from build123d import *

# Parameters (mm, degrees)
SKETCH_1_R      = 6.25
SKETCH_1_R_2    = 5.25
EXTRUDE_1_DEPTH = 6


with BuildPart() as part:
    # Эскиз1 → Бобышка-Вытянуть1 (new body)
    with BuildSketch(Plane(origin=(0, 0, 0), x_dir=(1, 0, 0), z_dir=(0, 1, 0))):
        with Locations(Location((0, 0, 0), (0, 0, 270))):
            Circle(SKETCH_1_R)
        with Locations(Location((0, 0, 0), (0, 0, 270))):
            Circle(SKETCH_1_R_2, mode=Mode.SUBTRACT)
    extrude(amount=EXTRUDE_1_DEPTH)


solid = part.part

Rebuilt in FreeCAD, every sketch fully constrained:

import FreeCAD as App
import Part
import Sketcher

V = App.Vector

doc = App.newDocument("Part")
body = doc.addObject("PartDesign::Body", "Body")

# Sketch on XZ plane
sketch1 = doc.addObject("Sketcher::SketchObject", "Sketch")
body.addObject(sketch1)
sketch1.AttachmentSupport = (doc.XZ_Plane, [""])
sketch1.MapMode = "FlatFace"
sketch1.addGeometry(Part.Circle(V(0, 0, 0), V(0, 0, 1), 6), False)
sketch1.addGeometry(Part.Circle(V(0, 0, 0), V(0, 0, 1), 5), False)
sketch1.addConstraint(Sketcher.Constraint("Coincident", 0, 3, -1, 1))
sketch1.addConstraint(Sketcher.Constraint("Coincident", 1, 3, -1, 1))
sketch1.addConstraint(Sketcher.Constraint("Diameter", 0, 12.5))
sketch1.addConstraint(Sketcher.Constraint("Diameter", 1, 10.5))
pad1 = doc.addObject("PartDesign::Pad", "Pad")
body.addObject(pad1)
pad1.Profile = sketch1
pad1.Length = 6
pad1.Reversed = True

doc.recompute()
